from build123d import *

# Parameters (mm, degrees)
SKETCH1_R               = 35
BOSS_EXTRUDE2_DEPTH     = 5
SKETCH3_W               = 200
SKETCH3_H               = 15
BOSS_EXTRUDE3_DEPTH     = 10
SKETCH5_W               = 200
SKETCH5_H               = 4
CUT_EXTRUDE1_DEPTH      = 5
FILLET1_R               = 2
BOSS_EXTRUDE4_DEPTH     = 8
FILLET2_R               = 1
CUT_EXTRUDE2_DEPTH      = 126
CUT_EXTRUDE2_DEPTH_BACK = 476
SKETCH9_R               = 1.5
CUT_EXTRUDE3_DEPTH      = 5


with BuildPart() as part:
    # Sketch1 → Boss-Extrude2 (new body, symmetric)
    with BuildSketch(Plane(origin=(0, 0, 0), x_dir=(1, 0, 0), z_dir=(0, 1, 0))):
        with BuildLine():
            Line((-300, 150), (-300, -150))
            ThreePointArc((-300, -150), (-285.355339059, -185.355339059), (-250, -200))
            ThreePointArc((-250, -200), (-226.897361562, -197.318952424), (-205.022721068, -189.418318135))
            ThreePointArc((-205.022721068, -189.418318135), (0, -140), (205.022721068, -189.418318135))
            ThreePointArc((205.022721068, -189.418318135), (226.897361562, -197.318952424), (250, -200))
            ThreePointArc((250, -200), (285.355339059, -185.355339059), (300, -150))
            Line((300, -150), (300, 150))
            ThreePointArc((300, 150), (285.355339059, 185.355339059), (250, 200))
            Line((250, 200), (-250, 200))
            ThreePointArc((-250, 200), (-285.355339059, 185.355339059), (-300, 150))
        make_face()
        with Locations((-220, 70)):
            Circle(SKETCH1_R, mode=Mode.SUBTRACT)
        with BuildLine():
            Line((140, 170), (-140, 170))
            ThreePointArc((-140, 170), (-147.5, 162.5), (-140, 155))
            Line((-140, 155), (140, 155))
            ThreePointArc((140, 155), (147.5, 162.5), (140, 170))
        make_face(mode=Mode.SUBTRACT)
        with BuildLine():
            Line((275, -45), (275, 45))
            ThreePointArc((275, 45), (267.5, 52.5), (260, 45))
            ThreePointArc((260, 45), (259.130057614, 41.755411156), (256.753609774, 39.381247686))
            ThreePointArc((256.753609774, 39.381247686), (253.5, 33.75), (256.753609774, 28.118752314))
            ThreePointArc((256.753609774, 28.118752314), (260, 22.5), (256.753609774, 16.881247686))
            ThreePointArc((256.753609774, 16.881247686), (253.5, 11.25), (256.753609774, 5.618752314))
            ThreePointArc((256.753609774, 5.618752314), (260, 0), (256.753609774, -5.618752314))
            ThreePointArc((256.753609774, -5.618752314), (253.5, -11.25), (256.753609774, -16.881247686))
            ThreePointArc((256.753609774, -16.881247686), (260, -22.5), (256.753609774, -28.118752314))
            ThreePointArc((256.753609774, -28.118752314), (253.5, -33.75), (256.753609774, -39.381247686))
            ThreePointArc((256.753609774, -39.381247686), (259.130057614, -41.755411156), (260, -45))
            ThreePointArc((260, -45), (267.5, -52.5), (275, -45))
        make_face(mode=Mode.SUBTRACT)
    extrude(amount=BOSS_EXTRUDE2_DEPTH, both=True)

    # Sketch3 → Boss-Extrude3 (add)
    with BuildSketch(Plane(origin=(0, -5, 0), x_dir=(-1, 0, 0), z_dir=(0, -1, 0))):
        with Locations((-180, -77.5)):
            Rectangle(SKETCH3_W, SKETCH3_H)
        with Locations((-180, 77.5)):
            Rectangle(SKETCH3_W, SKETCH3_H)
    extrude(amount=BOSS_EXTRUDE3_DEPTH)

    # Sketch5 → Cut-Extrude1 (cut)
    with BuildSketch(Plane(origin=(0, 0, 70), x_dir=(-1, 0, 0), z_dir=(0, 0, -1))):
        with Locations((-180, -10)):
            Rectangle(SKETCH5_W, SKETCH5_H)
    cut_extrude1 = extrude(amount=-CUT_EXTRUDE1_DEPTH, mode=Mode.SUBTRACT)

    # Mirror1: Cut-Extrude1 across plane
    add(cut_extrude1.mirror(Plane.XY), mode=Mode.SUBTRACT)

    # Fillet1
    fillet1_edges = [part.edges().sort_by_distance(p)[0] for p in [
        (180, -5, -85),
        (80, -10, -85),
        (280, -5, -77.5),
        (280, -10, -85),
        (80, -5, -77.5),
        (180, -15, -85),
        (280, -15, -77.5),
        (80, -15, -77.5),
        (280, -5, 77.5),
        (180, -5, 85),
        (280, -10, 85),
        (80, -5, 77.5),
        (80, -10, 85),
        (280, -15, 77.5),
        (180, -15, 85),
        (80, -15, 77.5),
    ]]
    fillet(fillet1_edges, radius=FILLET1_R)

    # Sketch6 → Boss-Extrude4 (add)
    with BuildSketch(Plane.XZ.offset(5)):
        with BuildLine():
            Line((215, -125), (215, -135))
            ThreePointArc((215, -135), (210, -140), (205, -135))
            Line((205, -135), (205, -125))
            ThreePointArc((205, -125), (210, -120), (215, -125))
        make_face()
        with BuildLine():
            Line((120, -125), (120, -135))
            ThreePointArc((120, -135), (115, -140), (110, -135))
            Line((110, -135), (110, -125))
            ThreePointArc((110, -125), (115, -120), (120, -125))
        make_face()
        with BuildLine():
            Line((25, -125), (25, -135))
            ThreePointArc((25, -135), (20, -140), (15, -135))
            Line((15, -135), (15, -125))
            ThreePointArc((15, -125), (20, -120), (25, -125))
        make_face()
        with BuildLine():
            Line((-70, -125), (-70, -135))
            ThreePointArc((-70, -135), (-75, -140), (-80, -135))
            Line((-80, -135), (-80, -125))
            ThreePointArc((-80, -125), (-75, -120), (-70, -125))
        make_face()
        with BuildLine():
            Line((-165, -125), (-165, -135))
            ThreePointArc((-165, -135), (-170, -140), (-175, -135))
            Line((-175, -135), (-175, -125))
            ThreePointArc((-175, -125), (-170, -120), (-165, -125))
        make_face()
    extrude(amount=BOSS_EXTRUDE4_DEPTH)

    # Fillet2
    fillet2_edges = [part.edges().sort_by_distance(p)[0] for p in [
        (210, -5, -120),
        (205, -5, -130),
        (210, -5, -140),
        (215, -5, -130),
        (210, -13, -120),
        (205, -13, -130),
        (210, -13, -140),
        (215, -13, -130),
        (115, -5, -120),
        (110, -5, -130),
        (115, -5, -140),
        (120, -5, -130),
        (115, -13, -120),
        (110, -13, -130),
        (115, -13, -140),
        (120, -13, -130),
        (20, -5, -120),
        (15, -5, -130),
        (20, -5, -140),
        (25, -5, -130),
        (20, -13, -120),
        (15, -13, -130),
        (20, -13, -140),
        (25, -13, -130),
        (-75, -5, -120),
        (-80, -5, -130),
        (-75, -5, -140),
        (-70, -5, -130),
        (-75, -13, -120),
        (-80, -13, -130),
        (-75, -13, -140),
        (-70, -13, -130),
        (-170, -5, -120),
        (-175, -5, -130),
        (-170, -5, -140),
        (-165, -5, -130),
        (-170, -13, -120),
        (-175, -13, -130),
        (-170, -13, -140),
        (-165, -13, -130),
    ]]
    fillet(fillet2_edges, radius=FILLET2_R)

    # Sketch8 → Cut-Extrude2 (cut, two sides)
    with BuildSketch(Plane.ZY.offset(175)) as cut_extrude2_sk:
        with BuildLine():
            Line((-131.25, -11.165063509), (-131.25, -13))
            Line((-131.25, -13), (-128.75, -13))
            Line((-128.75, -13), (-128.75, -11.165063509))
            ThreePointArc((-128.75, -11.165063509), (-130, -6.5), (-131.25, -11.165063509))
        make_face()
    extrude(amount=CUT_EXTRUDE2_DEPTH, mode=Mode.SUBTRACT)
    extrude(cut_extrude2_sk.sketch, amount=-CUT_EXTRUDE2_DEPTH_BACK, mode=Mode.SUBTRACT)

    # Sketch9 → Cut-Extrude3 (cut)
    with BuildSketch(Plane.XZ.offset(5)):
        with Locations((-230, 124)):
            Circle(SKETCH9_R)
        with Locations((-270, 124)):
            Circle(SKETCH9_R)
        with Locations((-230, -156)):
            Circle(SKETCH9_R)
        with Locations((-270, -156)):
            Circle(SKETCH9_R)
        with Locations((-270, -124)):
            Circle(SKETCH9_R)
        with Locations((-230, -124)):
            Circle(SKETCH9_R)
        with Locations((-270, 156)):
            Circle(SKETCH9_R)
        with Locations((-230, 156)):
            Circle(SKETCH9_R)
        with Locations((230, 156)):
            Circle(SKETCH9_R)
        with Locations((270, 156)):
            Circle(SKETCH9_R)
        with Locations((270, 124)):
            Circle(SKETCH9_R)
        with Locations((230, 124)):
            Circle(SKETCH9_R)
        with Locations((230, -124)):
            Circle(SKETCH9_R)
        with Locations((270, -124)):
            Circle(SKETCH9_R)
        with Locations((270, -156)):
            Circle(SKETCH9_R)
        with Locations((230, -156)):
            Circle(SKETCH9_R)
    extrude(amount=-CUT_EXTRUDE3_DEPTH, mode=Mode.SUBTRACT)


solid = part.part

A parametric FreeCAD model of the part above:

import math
import FreeCAD as App
import Part
import Sketcher


def edges_at(feature, points):
    """Names of the edges that pass closest to the given points."""
    edges = feature.Shape.Edges
    near = lambda p: min(range(len(edges)), key=lambda i: edges[i].distToShape(Part.Vertex(*p))[0])
    return sorted({f"Edge{near(p) + 1}" for p in points})

doc = App.newDocument("Part")
body = doc.addObject("PartDesign::Body", "Body")

# Sketch on XZ plane
sketch1 = doc.addObject("Sketcher::SketchObject", "Sketch")
body.addObject(sketch1)
sketch1.AttachmentSupport = (doc.XZ_Plane, [""])
sketch1.MapMode = "FlatFace"
sketch1.addGeometry(Part.LineSegment(App.Vector(-300, -150, 0), App.Vector(-300, 150, 0)), False)
sketch1.addGeometry(Part.ArcOfCircle(Part.Circle(App.Vector(-250, 150, 0), App.Vector(0, 0, 1), 50), math.radians(90), math.radians(180)), False)
sketch1.addGeometry(Part.ArcOfCircle(Part.Circle(App.Vector(-250, 99, 0), App.Vector(0, 0, 1), 101), math.radians(64), math.radians(90)), False)
sketch1.addGeometry(Part.ArcOfCircle(Part.Circle(App.Vector(0, 590, 0), App.Vector(0, 0, 1), 450), math.radians(-117), math.radians(-63)), False)
sketch1.addGeometry(Part.ArcOfCircle(Part.Circle(App.Vector(250, 99, 0), App.Vector(0, 0, 1), 101), math.radians(90), math.radians(116)), False)
sketch1.addGeometry(Part.ArcOfCircle(Part.Circle(App.Vector(250, 150, 0), App.Vector(0, 0, 1), 50), math.radians(0), math.radians(90)), False)
sketch1.addGeometry(Part.LineSegment(App.Vector(300, 150, 0), App.Vector(300, -150, 0)), False)
sketch1.addGeometry(Part.ArcOfCircle(Part.Circle(App.Vector(250, -150, 0), App.Vector(0, 0, 1), 50), math.radians(-90), math.radians(0)), False)
sketch1.addGeometry(Part.LineSegment(App.Vector(250, -200, 0), App.Vector(-250, -200, 0)), False)
sketch1.addGeometry(Part.ArcOfCircle(Part.Circle(App.Vector(-250, -150, 0), App.Vector(0, 0, 1), 50), math.radians(-180), math.radians(-90)), False)
sketch1.addGeometry(Part.LineSegment(App.Vector(275, -45, 0), App.Vector(275, 45, 0)), False)
sketch1.addGeometry(Part.ArcOfCircle(Part.Circle(App.Vector(268, 45, 0), App.Vector(0, 0, 1), 8), math.radians(0), math.radians(180)), False)
sketch1.addGeometry(Part.ArcOfCircle(Part.Circle(App.Vector(254, 45, 0), App.Vector(0, 0, 1), 6), math.radians(-60), math.radians(0)), False)
sketch1.addGeometry(Part.ArcOfCircle(Part.Circle(App.Vector(260, 34, 0), App.Vector(0, 0, 1), 6), math.radians(120), math.radians(240)), False)
sketch1.addGeometry(Part.ArcOfCircle(Part.Circle(App.Vector(254, 22, 0), App.Vector(0, 0, 1), 6), math.radians(-60), math.radians(60)), False)
sketch1.addGeometry(Part.ArcOfCircle(Part.Circle(App.Vector(260, 11, 0), App.Vector(0, 0, 1), 6), math.radians(120), math.radians(240)), False)
sketch1.addGeometry(Part.ArcOfCircle(Part.Circle(App.Vector(254, 0, 0), App.Vector(0, 0, 1), 6), math.radians(-60), math.radians(60)), False)
sketch1.addGeometry(Part.ArcOfCircle(Part.Circle(App.Vector(260, -11, 0), App.Vector(0, 0, 1), 6), math.radians(120), math.radians(240)), False)
sketch1.addGeometry(Part.ArcOfCircle(Part.Circle(App.Vector(254, -22, 0), App.Vector(0, 0, 1), 6), math.radians(-60), math.radians(60)), False)
sketch1.addGeometry(Part.ArcOfCircle(Part.Circle(App.Vector(260, -34, 0), App.Vector(0, 0, 1), 6), math.radians(120), math.radians(240)), False)
sketch1.addGeometry(Part.ArcOfCircle(Part.Circle(App.Vector(254, -45, 0), App.Vector(0, 0, 1), 6), math.radians(0), math.radians(60)), False)
sketch1.addGeometry(Part.ArcOfCircle(Part.Circle(App.Vector(268, -45, 0), App.Vector(0, 0, 1), 8), math.radians(180), math.radians(360)), False)
sketch1.addGeometry(Part.Circle(App.Vector(-220, -70, 0), App.Vector(0, 0, 1), 35), False)
sketch1.addGeometry(Part.LineSegment(App.Vector(-140, -170, 0), App.Vector(140, -170, 0)), False)
sketch1.addGeometry(Part.ArcOfCircle(Part.Circle(App.Vector(140, -162, 0), App.Vector(0, 0, 1), 8), math.radians(-90), math.radians(90)), False)
sketch1.addGeometry(Part.LineSegment(App.Vector(140, -155, 0), App.Vector(-140, -155, 0)), False)
sketch1.addGeometry(Part.ArcOfCircle(Part.Circle(App.Vector(-140, -162, 0), App.Vector(0, 0, 1), 8), math.radians(90), math.radians(270)), False)
sketch1.addConstraint(Sketcher.Constraint("Tangent", 0, 2, 1, 2))
sketch1.addConstraint(Sketcher.Constraint("Tangent", 1, 1, 2, 2))
sketch1.addConstraint(Sketcher.Constraint("Coincident", 2, 1, 3, 1))
sketch1.addConstraint(Sketcher.Constraint("Coincident", 3, 2, 4, 2))
sketch1.addConstraint(Sketcher.Constraint("Tangent", 4, 1, 5, 2))
sketch1.addConstraint(Sketcher.Constraint("Tangent", 5, 1, 6, 1))
sketch1.addConstraint(Sketcher.Constraint("Tangent", 6, 2, 7, 2))
sketch1.addConstraint(Sketcher.Constraint("Tangent", 7, 1, 8, 1))
sketch1.addConstraint(Sketcher.Constraint("Tangent", 8, 2, 9, 2))
sketch1.addConstraint(Sketcher.Constraint("Tangent", 9, 1, 0, 1))
sketch1.addConstraint(Sketcher.Constraint("Tangent", 10, 2, 11, 1))
sketch1.addConstraint(Sketcher.Constraint("Tangent", 11, 2, 12, 2))
sketch1.addConstraint(Sketcher.Constraint("Tangent", 12, 1, 13, 1))
sketch1.addConstraint(Sketcher.Constraint("Tangent", 13, 2, 14, 2))
sketch1.addConstraint(Sketcher.Constraint("Tangent", 14, 1, 15, 1))
sketch1.addConstraint(Sketcher.Constraint("Tangent", 15, 2, 16, 2))
sketch1.addConstraint(Sketcher.Constraint("Tangent", 16, 1, 17, 1))
sketch1.addConstraint(Sketcher.Constraint("Tangent", 17, 2, 18, 2))
sketch1.addConstraint(Sketcher.Constraint("Tangent", 18, 1, 19, 1))
sketch1.addConstraint(Sketcher.Constraint("Tangent", 19, 2, 20, 2))
sketch1.addConstraint(Sketcher.Constraint("Tangent", 20, 1, 21, 1))
sketch1.addConstraint(Sketcher.Constraint("Tangent", 21, 2, 10, 1))
sketch1.addConstraint(Sketcher.Constraint("Tangent", 23, 2, 24, 1))
sketch1.addConstraint(Sketcher.Constraint("Tangent", 24, 2, 25, 1))
sketch1.addConstraint(Sketcher.Constraint("Tangent", 25, 2, 26, 1))
sketch1.addConstraint(Sketcher.Constraint("Tangent", 26, 2, 23, 1))
sketch1.addConstraint(Sketcher.Constraint("Vertical", 0))
sketch1.addConstraint(Sketcher.Constraint("Vertical", 6))
sketch1.addConstraint(Sketcher.Constraint("Horizontal", 8))
sketch1.addConstraint(Sketcher.Constraint("Vertical", 10))
sketch1.addConstraint(Sketcher.Constraint("Horizontal", 23))
sketch1.addConstraint(Sketcher.Constraint("Horizontal", 25))
sketch1.addConstraint(Sketcher.Constraint("Equal", 2, 4))
sketch1.addConstraint(Sketcher.Constraint("Equal", 1, 5))
sketch1.addConstraint(Sketcher.Constraint("Equal", 5, 7))
sketch1.addConstraint(Sketcher.Constraint("Equal", 7, 9))
sketch1.addConstraint(Sketcher.Constraint("Equal", 12, 14))
sketch1.addConstraint(Sketcher.Constraint("Equal", 13, 15))
sketch1.addConstraint(Sketcher.Constraint("Equal", 14, 16))
sketch1.addConstraint(Sketcher.Constraint("Equal", 15, 17))
sketch1.addConstraint(Sketcher.Constraint("Equal", 16, 18))
sketch1.addConstraint(Sketcher.Constraint("Equal", 17, 19))
sketch1.addConstraint(Sketcher.Constraint("Equal", 18, 20))
sketch1.addConstraint(Sketcher.Constraint("Equal", 11, 21))
sketch1.addConstraint(Sketcher.Constraint("Equal", 21, 24))
sketch1.addConstraint(Sketcher.Constraint("Symmetric", 1, 3, 7, 3, -1, 1))
sketch1.addConstraint(Sketcher.Constraint("Symmetric", 4, 1, 8, 2, -1, 1))
sketch1.addConstraint(Sketcher.Constraint("Symmetric", 2, 1, 3, 2, -2))
sketch1.addConstraint(Sketcher.Constraint("Symmetric", 15, 3, 17, 3, -1))
sketch1.addConstraint(Sketcher.Constraint("Symmetric", 13, 3, 19, 3, -1))
sketch1.addConstraint(Sketcher.Constraint("Horizontal", 11, 3, 12, 3))
sketch1.addConstraint(Sketcher.Constraint("Horizontal", 20, 3, 21, 3))
sketch1.addConstraint(Sketcher.Constraint("Vertical", 12, 3, 14, 3))
sketch1.addConstraint(Sketcher.Constraint("Vertical", 13, 3, 15, 3))
sketch1.addConstraint(Sketcher.Constraint("Vertical", 14, 3, 16, 3))
sketch1.addConstraint(Sketcher.Constraint("Vertical", 19, 3, 11, 2))
sketch1.addConstraint(Sketcher.Constraint("Diameter", 22, 70.0))
sketch1.addConstraint(Sketcher.Constraint("Radius", 1, 50.0))
sketch1.addConstraint(Sketcher.Constraint("Radius", 3, 450.0))
sketch1.addConstraint(Sketcher.Constraint("Radius", 11, 7.5))
sketch1.addConstraint(Sketcher.Constraint("Radius", 13, 6.5))
sketch1.addConstraint(Sketcher.Constraint("DistanceX", 8, 2, 8, 1, 500.0))
sketch1.addConstraint(Sketcher.Constraint("DistanceX", 23, 1, 23, 2, 280.0))
sketch1.addConstraint(Sketcher.Constraint("DistanceY", 0, 1, 0, 2, 300.0))
sketch1.addConstraint(Sketcher.Constraint("DistanceY", 10, 1, 10, 2, 90.0))
sketch1.addConstraint(Sketcher.Constraint("DistanceY", -1, 1, 3, 3, 590.0))
sketch1.addConstraint(Sketcher.Constraint("DistanceX", -1, 1, 13, 3, 260.0))
sketch1.addConstraint(Sketcher.Constraint("DistanceX", 22, 3, -1, 1, 220.0))
sketch1.addConstraint(Sketcher.Constraint("DistanceY", 22, 3, -1, 1, 70.0))
sketch1.addConstraint(Sketcher.Constraint("DistanceX", -1, 1, 24, 3, 140.0))
sketch1.addConstraint(Sketcher.Constraint("DistanceY", 23, 2, -1, 1, 170.0))
sketch1.addConstraint(Sketcher.Constraint("Radius", 2, 100.878463))
pad1 = doc.addObject("PartDesign::Pad", "Pad")
body.addObject(pad1)
pad1.Profile = sketch1
pad1.Length = 10
pad1.Midplane = True

# Sketch on XZ plane
sketch2 = doc.addObject("Sketcher::SketchObject", "Sketch001")
body.addObject(sketch2)
sketch2.AttachmentSupport = (doc.XZ_Plane, [""])
sketch2.MapMode = "FlatFace"
sketch2.AttachmentOffset = App.Placement(App.Vector(0, 0, 5), App.Rotation())
sketch2.addGeometry(Part.LineSegment(App.Vector(280, 70, 0), App.Vector(280, 85, 0)), False)
sketch2.addGeometry(Part.LineSegment(App.Vector(280, 85, 0), App.Vector(80, 85, 0)), False)
sketch2.addGeometry(Part.LineSegment(App.Vector(80, 85, 0), App.Vector(80, 70, 0)), False)
sketch2.addGeometry(Part.LineSegment(App.Vector(80, 70, 0), App.Vector(280, 70, 0)), False)
sketch2.addGeometry(Part.LineSegment(App.Vector(280, -85, 0), App.Vector(280, -70, 0)), False)
sketch2.addGeometry(Part.LineSegment(App.Vector(280, -70, 0), App.Vector(80, -70, 0)), False)
sketch2.addGeometry(Part.LineSegment(App.Vector(80, -70, 0), App.Vector(80, -85, 0)), False)
sketch2.addGeometry(Part.LineSegment(App.Vector(80, -85, 0), App.Vector(280, -85, 0)), False)
sketch2.addConstraint(Sketcher.Constraint("Coincident", 0, 2, 1, 1))
sketch2.addConstraint(Sketcher.Constraint("Coincident", 1, 2, 2, 1))
sketch2.addConstraint(Sketcher.Constraint("Coincident", 2, 2, 3, 1))
sketch2.addConstraint(Sketcher.Constraint("Coincident", 3, 2, 0, 1))
sketch2.addConstraint(Sketcher.Constraint("Coincident", 4, 2, 5, 1))
sketch2.addConstraint(Sketcher.Constraint("Coincident", 5, 2, 6, 1))
sketch2.addConstraint(Sketcher.Constraint("Coincident", 6, 2, 7, 1))
sketch2.addConstraint(Sketcher.Constraint("Coincident", 7, 2, 4, 1))
sketch2.addConstraint(Sketcher.Constraint("Vertical", 0))
sketch2.addConstraint(Sketcher.Constraint("Horizontal", 1))
sketch2.addConstraint(Sketcher.Constraint("Vertical", 2))
sketch2.addConstraint(Sketcher.Constraint("Horizontal", 3))
sketch2.addConstraint(Sketcher.Constraint("Vertical", 4))
sketch2.addConstraint(Sketcher.Constraint("Horizontal", 5))
sketch2.addConstraint(Sketcher.Constraint("Vertical", 6))
sketch2.addConstraint(Sketcher.Constraint("Horizontal", 7))
sketch2.addConstraint(Sketcher.Constraint("Symmetric", 3, 2, 4, 2, -1))
sketch2.addConstraint(Sketcher.Constraint("Symmetric", 1, 2, 6, 2, -1))
sketch2.addConstraint(Sketcher.Constraint("DistanceX", 1, 2, 1, 1, 200.0))
sketch2.addConstraint(Sketcher.Constraint("DistanceY", 0, 1, 0, 2, 15.0))
sketch2.addConstraint(Sketcher.Constraint("DistanceX", -1, 1, 0, 2, 280.0))
sketch2.addConstraint(Sketcher.Constraint("DistanceY", -1, 1, 0, 2, 85.0))
pad2 = doc.addObject("PartDesign::Pad", "Pad001")
body.addObject(pad2)
pad2.Profile = sketch2
pad2.Length = 10

# Sketch on XY plane
sketch3 = doc.addObject("Sketcher::SketchObject", "Sketch002")
body.addObject(sketch3)
sketch3.AttachmentSupport = (doc.XY_Plane, [""])
sketch3.MapMode = "FlatFace"
sketch3.AttachmentOffset = App.Placement(App.Vector(0, 0, 70), App.Rotation())
sketch3.addGeometry(Part.LineSegment(App.Vector(280, -8, 0), App.Vector(280, -12, 0)), False)
sketch3.addGeometry(Part.LineSegment(App.Vector(280, -12, 0), App.Vector(80, -12, 0)), False)
sketch3.addGeometry(Part.LineSegment(App.Vector(80, -12, 0), App.Vector(80, -8, 0)), False)
sketch3.addGeometry(Part.LineSegment(App.Vector(80, -8, 0), App.Vector(280, -8, 0)), False)
sketch3.addConstraint(Sketcher.Constraint("Coincident", 0, 2, 1, 1))
sketch3.addConstraint(Sketcher.Constraint("Coincident", 1, 2, 2, 1))
sketch3.addConstraint(Sketcher.Constraint("Coincident", 2, 2, 3, 1))
sketch3.addConstraint(Sketcher.Constraint("Coincident", 3, 2, 0, 1))
sketch3.addConstraint(Sketcher.Constraint("Vertical", 0))
sketch3.addConstraint(Sketcher.Constraint("Horizontal", 1))
sketch3.addConstraint(Sketcher.Constraint("Vertical", 2))
sketch3.addConstraint(Sketcher.Constraint("Horizontal", 3))
sketch3.addConstraint(Sketcher.Constraint("DistanceX", 1, 2, 1, 1, 200.0))
sketch3.addConstraint(Sketcher.Constraint("DistanceY", 0, 2, 0, 1, 4.0))
sketch3.addConstraint(Sketcher.Constraint("DistanceX", -1, 1, 0, 2, 280.0))
sketch3.addConstraint(Sketcher.Constraint("DistanceY", 0, 2, -1, 1, 12.0))
pocket1 = doc.addObject("PartDesign::Pocket", "Pocket")
body.addObject(pocket1)
pocket1.Profile = sketch3
pocket1.Length = 5
pocket1.Reversed = True
doc.recompute()

mirrored = doc.addObject("PartDesign::Mirrored", "Mirrored")
body.addObject(mirrored)
mirrored.Originals = [pocket1]
mirrored.MirrorPlane = (doc.XY_Plane, [""])
body.Tip = mirrored
doc.recompute()

fillet = doc.addObject("PartDesign::Fillet", "Fillet")
body.addObject(fillet)
fillet.Base = (mirrored, edges_at(mirrored, [
    (180, -5, -85),
    (80, -10, -85),
    (280, -5, -77.5),
    (280, -10, -85),
    (80, -5, -77.5),
    (180, -15, -85),
    (280, -15, -77.5),
    (80, -15, -77.5),
    (280, -5, 77.5),
    (180, -5, 85),
    (280, -10, 85),
    (80, -5, 77.5),
    (80, -10, 85),
    (280, -15, 77.5),
    (180, -15, 85),
    (80, -15, 77.5),
]))
fillet.Radius = 2

# Sketch on XZ plane
sketch4 = doc.addObject("Sketcher::SketchObject", "Sketch003")
body.addObject(sketch4)
sketch4.AttachmentSupport = (doc.XZ_Plane, [""])
sketch4.MapMode = "FlatFace"
sketch4.AttachmentOffset = App.Placement(App.Vector(0, 0, 5), App.Rotation())
sketch4.addGeometry(Part.LineSegment(App.Vector(215, -135, 0), App.Vector(215, -125, 0)), False)
sketch4.addGeometry(Part.ArcOfCircle(Part.Circle(App.Vector(210, -125, 0), App.Vector(0, 0, 1), 5), math.radians(0), math.radians(180)), False)
sketch4.addGeometry(Part.LineSegment(App.Vector(205, -125, 0), App.Vector(205, -135, 0)), False)
sketch4.addGeometry(Part.ArcOfCircle(Part.Circle(App.Vector(210, -135, 0), App.Vector(0, 0, 1), 5), math.radians(180), math.radians(360)), False)
sketch4.addGeometry(Part.LineSegment(App.Vector(120, -135, 0), App.Vector(120, -125, 0)), False)
sketch4.addGeometry(Part.ArcOfCircle(Part.Circle(App.Vector(115, -125, 0), App.Vector(0, 0, 1), 5), math.radians(0), math.radians(180)), False)
sketch4.addGeometry(Part.LineSegment(App.Vector(110, -125, 0), App.Vector(110, -135, 0)), False)
sketch4.addGeometry(Part.ArcOfCircle(Part.Circle(App.Vector(115, -135, 0), App.Vector(0, 0, 1), 5), math.radians(180), math.radians(360)), False)
sketch4.addGeometry(Part.LineSegment(App.Vector(25, -135, 0), App.Vector(25, -125, 0)), False)
sketch4.addGeometry(Part.ArcOfCircle(Part.Circle(App.Vector(20, -125, 0), App.Vector(0, 0, 1), 5), math.radians(0), math.radians(180)), False)
sketch4.addGeometry(Part.LineSegment(App.Vector(15, -125, 0), App.Vector(15, -135, 0)), False)
sketch4.addGeometry(Part.ArcOfCircle(Part.Circle(App.Vector(20, -135, 0), App.Vector(0, 0, 1), 5), math.radians(180), math.radians(360)), False)
sketch4.addGeometry(Part.LineSegment(App.Vector(-70, -135, 0), App.Vector(-70, -125, 0)), False)
sketch4.addGeometry(Part.ArcOfCircle(Part.Circle(App.Vector(-75, -125, 0), App.Vector(0, 0, 1), 5), math.radians(0), math.radians(180)), False)
sketch4.addGeometry(Part.LineSegment(App.Vector(-80, -125, 0), App.Vector(-80, -135, 0)), False)
sketch4.addGeometry(Part.ArcOfCircle(Part.Circle(App.Vector(-75, -135, 0), App.Vector(0, 0, 1), 5), math.radians(180), math.radians(360)), False)
sketch4.addGeometry(Part.LineSegment(App.Vector(-165, -135, 0), App.Vector(-165, -125, 0)), False)
sketch4.addGeometry(Part.ArcOfCircle(Part.Circle(App.Vector(-170, -125, 0), App.Vector(0, 0, 1), 5), math.radians(0), math.radians(180)), False)
sketch4.addGeometry(Part.LineSegment(App.Vector(-175, -125, 0), App.Vector(-175, -135, 0)), False)
sketch4.addGeometry(Part.ArcOfCircle(Part.Circle(App.Vector(-170, -135, 0), App.Vector(0, 0, 1), 5), math.radians(180), math.radians(360)), False)
sketch4.addConstraint(Sketcher.Constraint("Tangent", 0, 2, 1, 1))
sketch4.addConstraint(Sketcher.Constraint("Tangent", 1, 2, 2, 1))
sketch4.addConstraint(Sketcher.Constraint("Tangent", 2, 2, 3, 1))
sketch4.addConstraint(Sketcher.Constraint("Tangent", 3, 2, 0, 1))
sketch4.addConstraint(Sketcher.Constraint("Tangent", 4, 2, 5, 1))
sketch4.addConstraint(Sketcher.Constraint("Tangent", 5, 2, 6, 1))
sketch4.addConstraint(Sketcher.Constraint("Tangent", 6, 2, 7, 1))
sketch4.addConstraint(Sketcher.Constraint("Tangent", 7, 2, 4, 1))
sketch4.addConstraint(Sketcher.Constraint("Tangent", 8, 2, 9, 1))
sketch4.addConstraint(Sketcher.Constraint("Tangent", 9, 2, 10, 1))
sketch4.addConstraint(Sketcher.Constraint("Tangent", 10, 2, 11, 1))
sketch4.addConstraint(Sketcher.Constraint("Tangent", 11, 2, 8, 1))
sketch4.addConstraint(Sketcher.Constraint("Tangent", 12, 2, 13, 1))
sketch4.addConstraint(Sketcher.Constraint("Tangent", 13, 2, 14, 1))
sketch4.addConstraint(Sketcher.Constraint("Tangent", 14, 2, 15, 1))
sketch4.addConstraint(Sketcher.Constraint("Tangent", 15, 2, 12, 1))
sketch4.addConstraint(Sketcher.Constraint("Tangent", 16, 2, 17, 1))
sketch4.addConstraint(Sketcher.Constraint("Tangent", 17, 2, 18, 1))
sketch4.addConstraint(Sketcher.Constraint("Tangent", 18, 2, 19, 1))
sketch4.addConstraint(Sketcher.Constraint("Tangent", 19, 2, 16, 1))
sketch4.addConstraint(Sketcher.Constraint("Vertical", 0))
sketch4.addConstraint(Sketcher.Constraint("Vertical", 2))
sketch4.addConstraint(Sketcher.Constraint("Vertical", 4))
sketch4.addConstraint(Sketcher.Constraint("Vertical", 6))
sketch4.addConstraint(Sketcher.Constraint("Vertical", 8))
sketch4.addConstraint(Sketcher.Constraint("Vertical", 10))
sketch4.addConstraint(Sketcher.Constraint("Vertical", 12))
sketch4.addConstraint(Sketcher.Constraint("Vertical", 14))
sketch4.addConstraint(Sketcher.Constraint("Vertical", 16))
sketch4.addConstraint(Sketcher.Constraint("Vertical", 18))
sketch4.addConstraint(Sketcher.Constraint("Equal", 3, 5))
sketch4.addConstraint(Sketcher.Constraint("Equal", 7, 9))
sketch4.addConstraint(Sketcher.Constraint("Equal", 11, 13))
sketch4.addConstraint(Sketcher.Constraint("Equal", 15, 17))
sketch4.addConstraint(Sketcher.Constraint("Horizontal", 1, 3, 5, 3))
sketch4.addConstraint(Sketcher.Constraint("Horizontal", 3, 3, 7, 3))
sketch4.addConstraint(Sketcher.Constraint("Horizontal", 5, 3, 9, 3))
sketch4.addConstraint(Sketcher.Constraint("Horizontal", 7, 3, 11, 3))
sketch4.addConstraint(Sketcher.Constraint("Horizontal", 9, 3, 13, 3))
sketch4.addConstraint(Sketcher.Constraint("Horizontal", 11, 3, 15, 3))
sketch4.addConstraint(Sketcher.Constraint("Horizontal", 13, 3, 17, 3))
sketch4.addConstraint(Sketcher.Constraint("Horizontal", 15, 3, 19, 3))
sketch4.addConstraint(Sketcher.Constraint("Radius", 1, 5.0))
sketch4.addConstraint(Sketcher.Constraint("DistanceY", 0, 1, 0, 2, 10.0))
sketch4.addConstraint(Sketcher.Constraint("DistanceX", -1, 1, 1, 3, 210.0))
sketch4.addConstraint(Sketcher.Constraint("DistanceY", 1, 3, -1, 1, 125.0))
sketch4.addConstraint(Sketcher.Constraint("DistanceX", -1, 1, 5, 3, 115.0))
sketch4.addConstraint(Sketcher.Constraint("DistanceX", -1, 1, 9, 3, 20.0))
sketch4.addConstraint(Sketcher.Constraint("DistanceX", 13, 3, -1, 1, 75.0))
sketch4.addConstraint(Sketcher.Constraint("DistanceX", 17, 3, -1, 1, 170.0))
pad3 = doc.addObject("PartDesign::Pad", "Pad002")
body.addObject(pad3)
pad3.Profile = sketch4
pad3.Length = 8
doc.recompute()

fillet2 = doc.addObject("PartDesign::Fillet", "Fillet001")
body.addObject(fillet2)
fillet2.Base = (pad3, edges_at(pad3, [
    (210, -5, -120),
    (205, -5, -130),
    (210, -5, -140),
    (215, -5, -130),
    (210, -13, -120),
    (205, -13, -130),
    (210, -13, -140),
    (215, -13, -130),
    (115, -5, -120),
    (110, -5, -130),
    (115, -5, -140),
    (120, -5, -130),
    (115, -13, -120),
    (110, -13, -130),
    (115, -13, -140),
    (120, -13, -130),
    (20, -5, -120),
    (15, -5, -130),
    (20, -5, -140),
    (25, -5, -130),
    (20, -13, -120),
    (15, -13, -130),
    (20, -13, -140),
    (25, -13, -130),
    (-75, -5, -120),
    (-80, -5, -130),
    (-75, -5, -140),
    (-70, -5, -130),
    (-75, -13, -120),
    (-80, -13, -130),
    (-75, -13, -140),
    (-70, -13, -130),
    (-170, -5, -120),
    (-175, -5, -130),
    (-170, -5, -140),
    (-165, -5, -130),
    (-170, -13, -120),
    (-175, -13, -130),
    (-170, -13, -140),
    (-165, -13, -130),
]))
fillet2.Radius = 1

# Sketch on YZ plane
sketch5 = doc.addObject("Sketcher::SketchObject", "Sketch004")
body.addObject(sketch5)
sketch5.AttachmentSupport = (doc.YZ_Plane, [""])
sketch5.MapMode = "FlatFace"
sketch5.AttachmentOffset = App.Placement(App.Vector(0, 0, -175), App.Rotation())
sketch5.addGeometry(Part.LineSegment(App.Vector(-11.2, -131.2, 0), App.Vector(-13, -131.2, 0)), False)
sketch5.addGeometry(Part.LineSegment(App.Vector(-13, -131.2, 0), App.Vector(-13, -128.8, 0)), False)
sketch5.addGeometry(Part.LineSegment(App.Vector(-13, -128.8, 0), App.Vector(-11.2, -128.8, 0)), False)
sketch5.addGeometry(Part.ArcOfCircle(Part.Circle(App.Vector(-9, -130, 0), App.Vector(0, 0, 1), 2.5), math.radians(-150), math.radians(150)), False)
sketch5.addConstraint(Sketcher.Constraint("Coincident", 0, 2, 1, 1))
sketch5.addConstraint(Sketcher.Constraint("Coincident", 1, 2, 2, 1))
sketch5.addConstraint(Sketcher.Constraint("Coincident", 2, 2, 3, 2))
sketch5.addConstraint(Sketcher.Constraint("Coincident", 3, 1, 0, 1))
sketch5.addConstraint(Sketcher.Constraint("Horizontal", 0))
sketch5.addConstraint(Sketcher.Constraint("Vertical", 1))
sketch5.addConstraint(Sketcher.Constraint("Horizontal", 2))
sketch5.addConstraint(Sketcher.Constraint("Vertical", 2, 2, 3, 1))
sketch5.addConstraint(Sketcher.Constraint("Radius", 3, 2.5))
sketch5.addConstraint(Sketcher.Constraint("DistanceY", 1, 1, 1, 2, 2.5))
sketch5.addConstraint(Sketcher.Constraint("DistanceX", 3, 3, -1, 1, 9.0))
sketch5.addConstraint(Sketcher.Constraint("DistanceY", 3, 3, -1, 1, 130.0))
sketch5.addConstraint(Sketcher.Constraint("DistanceX", 0, 2, -1, 1, 13.0))
pocket2 = doc.addObject("PartDesign::Pocket", "Pocket001")
body.addObject(pocket2)
pocket2.Profile = sketch5
pocket2.Type = "ThroughAll"
pocket2.Midplane = True

# Sketch on XZ plane
sketch6 = doc.addObject("Sketcher::SketchObject", "Sketch005")
body.addObject(sketch6)
sketch6.AttachmentSupport = (doc.XZ_Plane, [""])
sketch6.MapMode = "FlatFace"
sketch6.AttachmentOffset = App.Placement(App.Vector(0, 0, 5), App.Rotation())
sketch6.addGeometry(Part.Circle(App.Vector(-230, 124, 0), App.Vector(0, 0, 1), 1.5), False)
sketch6.addGeometry(Part.Circle(App.Vector(-270, 124, 0), App.Vector(0, 0, 1), 1.5), False)
sketch6.addGeometry(Part.Circle(App.Vector(-230, -156, 0), App.Vector(0, 0, 1), 1.5), False)
sketch6.addGeometry(Part.Circle(App.Vector(-270, -156, 0), App.Vector(0, 0, 1), 1.5), False)
sketch6.addGeometry(Part.Circle(App.Vector(-270, -124, 0), App.Vector(0, 0, 1), 1.5), False)
sketch6.addGeometry(Part.Circle(App.Vector(-230, -124, 0), App.Vector(0, 0, 1), 1.5), False)
sketch6.addGeometry(Part.Circle(App.Vector(-270, 156, 0), App.Vector(0, 0, 1), 1.5), False)
sketch6.addGeometry(Part.Circle(App.Vector(-230, 156, 0), App.Vector(0, 0, 1), 1.5), False)
sketch6.addGeometry(Part.Circle(App.Vector(230, 156, 0), App.Vector(0, 0, 1), 1.5), False)
sketch6.addGeometry(Part.Circle(App.Vector(270, 156, 0), App.Vector(0, 0, 1), 1.5), False)
sketch6.addGeometry(Part.Circle(App.Vector(270, 124, 0), App.Vector(0, 0, 1), 1.5), False)
sketch6.addGeometry(Part.Circle(App.Vector(230, 124, 0), App.Vector(0, 0, 1), 1.5), False)
sketch6.addGeometry(Part.Circle(App.Vector(230, -124, 0), App.Vector(0, 0, 1), 1.5), False)
sketch6.addGeometry(Part.Circle(App.Vector(270, -124, 0), App.Vector(0, 0, 1), 1.5), False)
sketch6.addGeometry(Part.Circle(App.Vector(270, -156, 0), App.Vector(0, 0, 1), 1.5), False)
sketch6.addGeometry(Part.Circle(App.Vector(230, -156, 0), App.Vector(0, 0, 1), 1.5), False)
sketch6.addConstraint(Sketcher.Constraint("Equal", 0, 1))
sketch6.addConstraint(Sketcher.Constraint("Equal", 1, 2))
sketch6.addConstraint(Sketcher.Constraint("Equal", 2, 3))
sketch6.addConstraint(Sketcher.Constraint("Equal", 3, 4))
sketch6.addConstraint(Sketcher.Constraint("Equal", 4, 5))
sketch6.addConstraint(Sketcher.Constraint("Equal", 5, 6))
sketch6.addConstraint(Sketcher.Constraint("Equal", 6, 7))
sketch6.addConstraint(Sketcher.Constraint("Equal", 7, 8))
sketch6.addConstraint(Sketcher.Constraint("Equal", 8, 9))
sketch6.addConstraint(Sketcher.Constraint("Equal", 9, 10))
sketch6.addConstraint(Sketcher.Constraint("Equal", 10, 11))
sketch6.addConstraint(Sketcher.Constraint("Equal", 11, 12))
sketch6.addConstraint(Sketcher.Constraint("Equal", 12, 13))
sketch6.addConstraint(Sketcher.Constraint("Equal", 13, 14))
sketch6.addConstraint(Sketcher.Constraint("Equal", 14, 15))
sketch6.addConstraint(Sketcher.Constraint("Symmetric", 2, 3, 8, 3, -1, 1))
sketch6.addConstraint(Sketcher.Constraint("Symmetric", 3, 3, 9, 3, -1, 1))
sketch6.addConstraint(Sketcher.Constraint("Symmetric", 4, 3, 10, 3, -1, 1))
sketch6.addConstraint(Sketcher.Constraint("Symmetric", 5, 3, 11, 3, -1, 1))
sketch6.addConstraint(Sketcher.Constraint("Symmetric", 0, 3, 12, 3, -1, 1))
sketch6.addConstraint(Sketcher.Constraint("Symmetric", 1, 3, 13, 3, -1, 1))
sketch6.addConstraint(Sketcher.Constraint("Symmetric", 6, 3, 14, 3, -1, 1))
sketch6.addConstraint(Sketcher.Constraint("Symmetric", 7, 3, 15, 3, -1, 1))
sketch6.addConstraint(Sketcher.Constraint("Symmetric", 7, 3, 8, 3, -2))
sketch6.addConstraint(Sketcher.Constraint("Symmetric", 6, 3, 9, 3, -2))
sketch6.addConstraint(Sketcher.Constraint("Symmetric", 1, 3, 10, 3, -2))
sketch6.addConstraint(Sketcher.Constraint("Symmetric", 0, 3, 11, 3, -2))
sketch6.addConstraint(Sketcher.Constraint("Horizontal", 0, 3, 1, 3))
sketch6.addConstraint(Sketcher.Constraint("Horizontal", 2, 3, 3, 3))
sketch6.addConstraint(Sketcher.Constraint("Vertical", 0, 3, 2, 3))
sketch6.addConstraint(Sketcher.Constraint("Vertical", 1, 3, 3, 3))
sketch6.addConstraint(Sketcher.Constraint("Diameter", 0, 3.0))
sketch6.addConstraint(Sketcher.Constraint("DistanceX", 0, 3, -1, 1, 230.0))
sketch6.addConstraint(Sketcher.Constraint("DistanceY", -1, 1, 0, 3, 124.0))
sketch6.addConstraint(Sketcher.Constraint("DistanceX", 1, 3, -1, 1, 270.0))
sketch6.addConstraint(Sketcher.Constraint("DistanceY", 2, 3, -1, 1, 156.0))
pocket3 = doc.addObject("PartDesign::Pocket", "Pocket002")
body.addObject(pocket3)
pocket3.Profile = sketch6
pocket3.Length = 5

doc.recompute()
